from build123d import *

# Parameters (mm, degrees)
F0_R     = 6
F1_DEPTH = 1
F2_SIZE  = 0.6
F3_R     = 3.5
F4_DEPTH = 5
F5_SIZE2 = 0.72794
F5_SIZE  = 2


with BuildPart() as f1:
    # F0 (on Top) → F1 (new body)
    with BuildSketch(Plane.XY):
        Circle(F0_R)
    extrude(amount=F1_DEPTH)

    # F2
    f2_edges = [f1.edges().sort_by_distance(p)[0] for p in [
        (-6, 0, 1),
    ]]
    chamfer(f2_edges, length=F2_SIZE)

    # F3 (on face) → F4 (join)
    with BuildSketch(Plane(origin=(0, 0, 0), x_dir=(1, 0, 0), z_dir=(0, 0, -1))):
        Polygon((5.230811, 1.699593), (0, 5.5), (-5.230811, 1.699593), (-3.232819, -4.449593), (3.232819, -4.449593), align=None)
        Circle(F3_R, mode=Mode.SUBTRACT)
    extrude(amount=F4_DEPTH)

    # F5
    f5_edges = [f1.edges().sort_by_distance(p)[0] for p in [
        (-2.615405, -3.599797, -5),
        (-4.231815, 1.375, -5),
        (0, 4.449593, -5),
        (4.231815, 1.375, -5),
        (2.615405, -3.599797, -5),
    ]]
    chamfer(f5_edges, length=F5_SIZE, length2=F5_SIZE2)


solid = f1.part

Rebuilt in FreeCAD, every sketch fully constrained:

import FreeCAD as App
import Part
import Sketcher
from FreeCAD import Vector
Q = App.Units.Quantity


def edges_at(feature, points):
    """Names of the edges that pass closest to the given points."""
    edges = feature.Shape.Edges
    near = lambda p: min(range(len(edges)), key=lambda i: edges[i].distToShape(Part.Vertex(*p))[0])
    return sorted({f"Edge{near(p) + 1}" for p in points})


def add_polygon(sketch, points):
    """Adds a closed chain of lines whose ends are joined by coincident constraints."""
    first, n = sketch.GeometryCount, len(points)
    for a, b in zip(points, points[1:] + points[:1]):
        sketch.addGeometry(Part.LineSegment(App.Vector(*a, 0), App.Vector(*b, 0)), False)
    for i in range(n):
        sketch.addConstraint(Sketcher.Constraint("Coincident", first + i, 2, first + (i + 1) % n, 1))

doc = App.newDocument("Part")
body = doc.addObject("PartDesign::Body", "Body")

# Sketch on XY plane
sketch1 = body.newObject("Sketcher::SketchObject", "Sketch")
sketch1.AttachmentSupport = (doc.getObject("XY_Plane"), [""])
sketch1.MapMode = "FlatFace"
sketch1.addGeometry(Part.Circle(Vector(0, 0, 0), Vector(0, 0, 1), 6), False)
sketch1.addConstraint([
    Sketcher.Constraint("Coincident", 0, 3, -1, 1),
    Sketcher.Constraint("Diameter", 0, 12.0),
])
pad1 = body.newObject("PartDesign::Pad", "Pad")
pad1.Profile = sketch1
pad1.Length = 1
doc.recompute()

chamfer = body.newObject("PartDesign::Chamfer", "Chamfer")
chamfer.Base = (pad1, edges_at(pad1, [(-6, 0, 1)]))
chamfer.Size = 0.6

# Sketch on XY plane
sketch2 = body.newObject("Sketcher::SketchObject", "Sketch001")
sketch2.AttachmentSupport = (doc.getObject("XY_Plane"), [""])
sketch2.MapMode = "FlatFace"
add_polygon(sketch2, [(5.2, -1.7), (0, -5.5), (-5.2, -1.7), (-3.2, 4.4), (3.2, 4.4)])  # lines 0-4
sketch2.addGeometry(Part.Circle(Vector(0, 0, 0), Vector(0, 0, 1), 3.5), False)  # 5
sketch2.addConstraint([
    Sketcher.Constraint("Horizontal", 3),
    Sketcher.Constraint("Coincident", 5, 3, -1, 1),
    Sketcher.Constraint("Symmetric", 1, 2, 4, 2, -2),
    Sketcher.Constraint("PointOnObject", 0, 2, -2),
    Sketcher.Constraint("Equal", 1, 2),
    Sketcher.Constraint("Equal", 2, 4),
    Sketcher.Constraint("Diameter", 5, 7.0),
    Sketcher.Constraint("Angle", 0, Q("-143.999997 deg")),
    Sketcher.Constraint("Angle", 2, Q("71.999997 deg")),
    Sketcher.Constraint("DistanceY", 0, 2, -1, 1, 5.5),
    Sketcher.Constraint("DistanceX", 3, 1, 3, 2, 6.465638),
])
pad2 = body.newObject("PartDesign::Pad", "Pad001")
pad2.Profile = sketch2
pad2.Length = 5
pad2.Reversed = True
doc.recompute()

chamfer2 = body.newObject("PartDesign::Chamfer", "Chamfer001")
chamfer2.Base = (pad2, edges_at(pad2, [
    (-2.615, -3.6, -5),
    (-4.232, 1.375, -5),
    (0, 4.45, -5),
    (4.232, 1.375, -5),
    (2.615, -3.6, -5),
]))
chamfer2.ChamferType = "Two distances"
chamfer2.Size = 2
chamfer2.Size2 = 0.72794

doc.recompute()
